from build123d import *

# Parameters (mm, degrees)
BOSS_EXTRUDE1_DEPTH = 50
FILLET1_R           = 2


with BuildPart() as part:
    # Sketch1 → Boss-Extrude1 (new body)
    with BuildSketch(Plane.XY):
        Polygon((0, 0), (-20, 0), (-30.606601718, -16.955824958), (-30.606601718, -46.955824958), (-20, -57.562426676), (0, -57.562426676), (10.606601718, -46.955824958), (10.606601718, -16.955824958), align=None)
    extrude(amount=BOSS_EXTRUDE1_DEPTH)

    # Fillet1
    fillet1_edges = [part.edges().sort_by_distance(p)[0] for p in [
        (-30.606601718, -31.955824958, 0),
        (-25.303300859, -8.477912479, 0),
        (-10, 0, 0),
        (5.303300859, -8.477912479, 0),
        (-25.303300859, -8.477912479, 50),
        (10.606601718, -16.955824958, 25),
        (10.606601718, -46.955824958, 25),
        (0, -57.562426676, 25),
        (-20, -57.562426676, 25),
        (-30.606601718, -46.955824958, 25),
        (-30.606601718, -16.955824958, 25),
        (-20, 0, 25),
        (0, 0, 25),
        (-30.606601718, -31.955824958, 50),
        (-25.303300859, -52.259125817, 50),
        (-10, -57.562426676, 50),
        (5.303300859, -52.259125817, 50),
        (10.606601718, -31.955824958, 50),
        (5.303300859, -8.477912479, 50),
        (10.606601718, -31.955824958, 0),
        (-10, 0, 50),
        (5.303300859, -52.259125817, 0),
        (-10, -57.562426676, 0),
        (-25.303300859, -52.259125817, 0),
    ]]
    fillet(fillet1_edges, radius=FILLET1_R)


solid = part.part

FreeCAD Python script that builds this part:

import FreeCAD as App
import Part
import Sketcher

V = App.Vector


def add_polygon(sketch, points):
    """Adds a closed chain of lines whose ends are joined by coincident constraints."""
    first, n = sketch.GeometryCount, len(points)
    for a, b in zip(points, points[1:] + points[:1]):
        sketch.addGeometry(Part.LineSegment(App.Vector(*a, 0), App.Vector(*b, 0)), False)
    for i in range(n):
        sketch.addConstraint(Sketcher.Constraint("Coincident", first + i, 2, first + (i + 1) % n, 1))

doc = App.newDocument("Part")
params = doc.addObject("Spreadsheet::Sheet", "Params")
for row, (alias, value) in enumerate([
    ("sketch1_width", "20 mm"),
    ("sketch1_height", "30 mm"),
    ("sketch1_length", "20 mm"),
    ("sketch1_length2", "15 mm"),
    ("pad1_length", "50 mm"),
    ("fillet_radius", "2 mm"),
], start=1):
    params.set(f"A{row}", alias)
    params.set(f"B{row}", "=" + value)
    params.setAlias(f"B{row}", alias)

body = doc.addObject("PartDesign::Body", "Body")

# Sketch on XY plane
sketch1 = doc.addObject("Sketcher::SketchObject", "Sketch")
body.addObject(sketch1)
sketch1.AttachmentSupport = (doc.XY_Plane, [""])
sketch1.MapMode = "FlatFace"
add_polygon(sketch1, [(0, 0), (-20, 0), (-31, -17), (-31, -47), (-20, -58), (0, -58), (11, -47), (11, -17)])  # lines 0-7
sketch1.addConstraint(Sketcher.Constraint("Horizontal", 0))
sketch1.addConstraint(Sketcher.Constraint("Vertical", 2))
sketch1.addConstraint(Sketcher.Constraint("Horizontal", 4))
sketch1.addConstraint(Sketcher.Constraint("Vertical", 6))
sketch1.addConstraint(Sketcher.Constraint("Coincident", 7, 2, -1, 1))
sketch1.addConstraint(Sketcher.Constraint("PointOnObject", 4, 2, -2))
sketch1.addConstraint(Sketcher.Constraint("Perpendicular", 3, 5))
sketch1.addConstraint(Sketcher.Constraint("Horizontal", 2, 2, 5, 2))
sketch1.addConstraint(Sketcher.Constraint("Horizontal", 1, 2, 6, 2))
sketch1.addConstraint(Sketcher.Constraint("Vertical", 0, 2, 3, 2))
sketch1.addConstraint(Sketcher.Constraint("Equal", 3, 5))
sketch1.addConstraint(Sketcher.Constraint("DistanceX", 0, 2, 0, 1, 20.0))
sketch1.addConstraint(Sketcher.Constraint("DistanceY", 2, 2, 2, 1, 30.0))
sketch1.addConstraint(Sketcher.Constraint("Distance", 1, 20.0))
sketch1.addConstraint(Sketcher.Constraint("Distance", 3, 15.0))
sketch1.setExpression("Constraints[19]", "Params.sketch1_width")
sketch1.setExpression("Constraints[20]", "Params.sketch1_height")
sketch1.setExpression("Constraints[21]", "Params.sketch1_length")
sketch1.setExpression("Constraints[22]", "Params.sketch1_length2")
pad1 = doc.addObject("PartDesign::Pad", "Pad")
body.addObject(pad1)
pad1.Profile = sketch1
pad1.setExpression("Length", "Params.pad1_length")
doc.recompute()

fillet = doc.addObject("PartDesign::Fillet", "Fillet")
body.addObject(fillet)
fillet.Base = (pad1, ["Edge1"])
fillet.UseAllEdges = True
fillet.setExpression("Radius", "Params.fillet_radius")

doc.recompute()
